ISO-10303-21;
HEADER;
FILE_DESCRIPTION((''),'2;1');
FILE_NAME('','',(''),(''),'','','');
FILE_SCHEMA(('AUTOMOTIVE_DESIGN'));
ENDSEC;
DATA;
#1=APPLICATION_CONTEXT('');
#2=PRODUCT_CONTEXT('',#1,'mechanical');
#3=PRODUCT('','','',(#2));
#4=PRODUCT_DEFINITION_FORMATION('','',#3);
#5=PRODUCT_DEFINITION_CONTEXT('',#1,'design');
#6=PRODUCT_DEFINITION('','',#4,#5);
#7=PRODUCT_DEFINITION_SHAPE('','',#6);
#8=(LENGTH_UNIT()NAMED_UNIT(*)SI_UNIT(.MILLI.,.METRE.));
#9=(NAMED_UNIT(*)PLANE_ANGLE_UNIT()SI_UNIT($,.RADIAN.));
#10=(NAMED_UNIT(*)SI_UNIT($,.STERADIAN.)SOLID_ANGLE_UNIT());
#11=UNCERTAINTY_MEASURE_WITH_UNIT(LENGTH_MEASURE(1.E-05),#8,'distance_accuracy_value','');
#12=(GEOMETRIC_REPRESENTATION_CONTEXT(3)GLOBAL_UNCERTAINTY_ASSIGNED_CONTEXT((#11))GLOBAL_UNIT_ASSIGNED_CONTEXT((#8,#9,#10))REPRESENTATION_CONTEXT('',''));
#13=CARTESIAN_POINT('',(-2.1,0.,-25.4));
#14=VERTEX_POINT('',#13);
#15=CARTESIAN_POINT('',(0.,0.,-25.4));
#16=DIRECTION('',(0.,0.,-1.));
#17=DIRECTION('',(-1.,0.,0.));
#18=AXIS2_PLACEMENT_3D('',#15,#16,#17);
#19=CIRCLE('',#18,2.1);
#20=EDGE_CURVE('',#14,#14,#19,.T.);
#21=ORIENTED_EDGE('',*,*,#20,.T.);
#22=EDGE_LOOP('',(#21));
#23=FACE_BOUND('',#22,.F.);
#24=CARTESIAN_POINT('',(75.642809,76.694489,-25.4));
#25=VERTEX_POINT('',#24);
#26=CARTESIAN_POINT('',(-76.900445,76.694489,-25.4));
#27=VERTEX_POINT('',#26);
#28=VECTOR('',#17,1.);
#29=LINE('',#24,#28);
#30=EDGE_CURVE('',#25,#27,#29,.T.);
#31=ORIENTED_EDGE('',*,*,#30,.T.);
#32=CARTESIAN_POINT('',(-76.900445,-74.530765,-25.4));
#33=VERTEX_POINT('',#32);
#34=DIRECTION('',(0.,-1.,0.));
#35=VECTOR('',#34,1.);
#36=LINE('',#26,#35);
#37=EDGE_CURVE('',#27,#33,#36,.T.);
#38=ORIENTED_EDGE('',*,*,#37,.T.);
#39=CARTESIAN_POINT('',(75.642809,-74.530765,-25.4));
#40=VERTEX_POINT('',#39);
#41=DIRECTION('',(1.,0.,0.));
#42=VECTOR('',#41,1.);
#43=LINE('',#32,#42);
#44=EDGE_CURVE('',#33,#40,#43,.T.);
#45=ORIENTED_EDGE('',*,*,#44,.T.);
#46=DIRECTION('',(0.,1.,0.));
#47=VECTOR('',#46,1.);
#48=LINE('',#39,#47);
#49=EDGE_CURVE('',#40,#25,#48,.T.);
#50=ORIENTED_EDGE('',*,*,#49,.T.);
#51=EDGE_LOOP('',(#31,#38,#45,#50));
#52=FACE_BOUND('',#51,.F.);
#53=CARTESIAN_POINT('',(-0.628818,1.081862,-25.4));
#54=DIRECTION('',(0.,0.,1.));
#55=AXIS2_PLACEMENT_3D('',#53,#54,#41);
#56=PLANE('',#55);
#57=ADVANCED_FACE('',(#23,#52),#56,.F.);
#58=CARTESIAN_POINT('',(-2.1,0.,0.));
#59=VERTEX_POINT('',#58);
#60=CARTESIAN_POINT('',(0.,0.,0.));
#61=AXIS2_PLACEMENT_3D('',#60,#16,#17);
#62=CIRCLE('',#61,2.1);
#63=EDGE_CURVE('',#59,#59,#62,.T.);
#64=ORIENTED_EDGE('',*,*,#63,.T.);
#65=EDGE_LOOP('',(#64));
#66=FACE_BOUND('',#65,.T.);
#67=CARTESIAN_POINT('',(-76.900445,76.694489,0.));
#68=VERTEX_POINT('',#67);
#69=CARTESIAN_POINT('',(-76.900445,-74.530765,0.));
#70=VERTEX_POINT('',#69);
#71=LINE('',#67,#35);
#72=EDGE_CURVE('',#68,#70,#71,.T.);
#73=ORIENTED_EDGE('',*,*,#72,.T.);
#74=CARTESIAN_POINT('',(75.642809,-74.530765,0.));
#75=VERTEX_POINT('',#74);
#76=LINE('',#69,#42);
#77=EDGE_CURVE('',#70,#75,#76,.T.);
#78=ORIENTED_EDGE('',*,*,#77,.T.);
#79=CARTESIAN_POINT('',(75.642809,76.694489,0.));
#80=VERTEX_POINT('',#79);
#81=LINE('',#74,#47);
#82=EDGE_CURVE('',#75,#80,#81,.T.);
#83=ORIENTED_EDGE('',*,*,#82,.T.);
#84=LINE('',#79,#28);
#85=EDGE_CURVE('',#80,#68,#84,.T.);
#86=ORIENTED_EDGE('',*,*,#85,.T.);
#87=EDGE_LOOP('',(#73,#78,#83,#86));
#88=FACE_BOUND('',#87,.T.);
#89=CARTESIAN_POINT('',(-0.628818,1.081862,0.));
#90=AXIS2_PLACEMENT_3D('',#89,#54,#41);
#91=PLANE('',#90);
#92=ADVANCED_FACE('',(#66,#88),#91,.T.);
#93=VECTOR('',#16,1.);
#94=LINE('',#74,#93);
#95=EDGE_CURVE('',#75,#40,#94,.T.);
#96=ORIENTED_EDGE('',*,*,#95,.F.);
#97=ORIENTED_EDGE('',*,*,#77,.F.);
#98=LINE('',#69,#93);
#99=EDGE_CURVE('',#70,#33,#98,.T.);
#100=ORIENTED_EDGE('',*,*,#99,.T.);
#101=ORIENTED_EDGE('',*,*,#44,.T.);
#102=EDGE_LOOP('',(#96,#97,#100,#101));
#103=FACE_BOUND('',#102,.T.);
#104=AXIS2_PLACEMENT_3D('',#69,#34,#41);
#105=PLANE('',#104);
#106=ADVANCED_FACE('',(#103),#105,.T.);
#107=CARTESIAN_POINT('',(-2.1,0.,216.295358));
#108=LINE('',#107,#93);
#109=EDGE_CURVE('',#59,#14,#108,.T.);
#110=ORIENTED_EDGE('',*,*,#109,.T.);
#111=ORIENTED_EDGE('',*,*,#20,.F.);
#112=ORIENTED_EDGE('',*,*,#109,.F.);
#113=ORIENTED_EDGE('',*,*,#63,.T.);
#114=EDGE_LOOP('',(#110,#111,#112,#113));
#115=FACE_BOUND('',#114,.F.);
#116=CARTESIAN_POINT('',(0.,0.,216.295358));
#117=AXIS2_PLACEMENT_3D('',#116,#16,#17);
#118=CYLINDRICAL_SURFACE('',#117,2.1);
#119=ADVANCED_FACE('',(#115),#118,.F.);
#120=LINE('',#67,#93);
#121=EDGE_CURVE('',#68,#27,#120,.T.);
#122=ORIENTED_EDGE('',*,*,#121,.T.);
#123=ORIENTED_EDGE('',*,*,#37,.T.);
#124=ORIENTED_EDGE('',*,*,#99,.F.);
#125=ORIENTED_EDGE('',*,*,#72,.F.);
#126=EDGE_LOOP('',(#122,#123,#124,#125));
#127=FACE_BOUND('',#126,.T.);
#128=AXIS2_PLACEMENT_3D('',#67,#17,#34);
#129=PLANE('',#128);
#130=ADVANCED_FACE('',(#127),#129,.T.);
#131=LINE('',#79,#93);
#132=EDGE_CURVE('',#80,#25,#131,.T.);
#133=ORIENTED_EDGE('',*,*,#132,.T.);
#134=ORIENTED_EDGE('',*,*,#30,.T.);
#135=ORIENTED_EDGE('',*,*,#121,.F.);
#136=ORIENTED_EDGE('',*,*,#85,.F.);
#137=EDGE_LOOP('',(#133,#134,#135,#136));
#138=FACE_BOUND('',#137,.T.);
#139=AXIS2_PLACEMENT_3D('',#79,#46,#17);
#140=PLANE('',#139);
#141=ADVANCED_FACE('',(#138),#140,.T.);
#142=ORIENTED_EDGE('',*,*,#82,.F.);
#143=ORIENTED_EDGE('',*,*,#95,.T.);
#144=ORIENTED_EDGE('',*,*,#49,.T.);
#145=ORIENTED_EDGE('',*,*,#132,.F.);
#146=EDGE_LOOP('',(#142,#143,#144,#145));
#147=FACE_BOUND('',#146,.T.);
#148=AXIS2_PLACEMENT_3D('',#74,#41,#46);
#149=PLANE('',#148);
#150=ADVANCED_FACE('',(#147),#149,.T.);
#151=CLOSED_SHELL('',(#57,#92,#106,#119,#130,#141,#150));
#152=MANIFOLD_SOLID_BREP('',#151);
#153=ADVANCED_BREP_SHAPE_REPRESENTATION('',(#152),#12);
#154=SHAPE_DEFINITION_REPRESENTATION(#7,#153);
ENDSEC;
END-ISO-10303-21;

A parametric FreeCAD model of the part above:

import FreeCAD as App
import Part
import Sketcher

V = App.Vector
Q = App.Units.Quantity

doc = App.newDocument("Part")
body = doc.addObject("PartDesign::Body", "Body")

# Sketch on XY plane
sketch1 = doc.addObject("Sketcher::SketchObject", "Sketch")
body.addObject(sketch1)
sketch1.AttachmentSupport = (doc.XY_Plane, [""])
sketch1.MapMode = "FlatFace"
sketch1.addGeometry([
    Part.LineSegment(V(76, -75, 0), V(76, 77, 0)),
    Part.LineSegment(V(76, 77, 0), V(-77, 77, 0)),
    Part.LineSegment(V(-77, 77, 0), V(-77, -75, 0)),
    Part.LineSegment(V(-77, -75, 0), V(76, -75, 0)),
], False)
sketch1.addConstraint([
    Sketcher.Constraint("Coincident", 0, 2, 1, 1),
    Sketcher.Constraint("Coincident", 1, 2, 2, 1),
    Sketcher.Constraint("Coincident", 2, 2, 3, 1),
    Sketcher.Constraint("Coincident", 3, 2, 0, 1),
    Sketcher.Constraint("Vertical", 0),
    Sketcher.Constraint("Horizontal", 1),
    Sketcher.Constraint("Vertical", 2),
    Sketcher.Constraint("Horizontal", 3),
    Sketcher.Constraint("DistanceX", 1, 2, 1, 1, Q("152.543254 mm")),
    Sketcher.Constraint("DistanceY", 0, 1, 0, 2, Q("151.225254 mm")),
    Sketcher.Constraint("DistanceX", -1, 1, 0, 2, Q("75.642809 mm")),
    Sketcher.Constraint("DistanceY", -1, 1, 0, 2, Q("76.694489 mm")),
])
pad1 = doc.addObject("PartDesign::Pad", "Pad")
body.addObject(pad1)
pad1.Profile = sketch1
pad1.Length = 25.4
pad1.Reversed = True

# Sketch on XY plane
sketch2 = doc.addObject("Sketcher::SketchObject", "Sketch001")
body.addObject(sketch2)
sketch2.AttachmentSupport = (doc.XY_Plane, [""])
sketch2.MapMode = "FlatFace"
sketch2.addGeometry(Part.Circle(V(0, 0, 0), V(0, 0, 1), 2.1), False)
sketch2.addConstraint([
    Sketcher.Constraint("Coincident", 0, 3, -1, 1),
    Sketcher.Constraint("Diameter", 0, Q("4.2 mm")),
])
doc.recompute()
hole = doc.addObject("PartDesign::Hole", "Hole")
body.addObject(hole)
hole.Profile = sketch2
hole.ThreadType = "None"
hole.Diameter = 4.2
hole.DepthType = "ThroughAll"

doc.recompute()
